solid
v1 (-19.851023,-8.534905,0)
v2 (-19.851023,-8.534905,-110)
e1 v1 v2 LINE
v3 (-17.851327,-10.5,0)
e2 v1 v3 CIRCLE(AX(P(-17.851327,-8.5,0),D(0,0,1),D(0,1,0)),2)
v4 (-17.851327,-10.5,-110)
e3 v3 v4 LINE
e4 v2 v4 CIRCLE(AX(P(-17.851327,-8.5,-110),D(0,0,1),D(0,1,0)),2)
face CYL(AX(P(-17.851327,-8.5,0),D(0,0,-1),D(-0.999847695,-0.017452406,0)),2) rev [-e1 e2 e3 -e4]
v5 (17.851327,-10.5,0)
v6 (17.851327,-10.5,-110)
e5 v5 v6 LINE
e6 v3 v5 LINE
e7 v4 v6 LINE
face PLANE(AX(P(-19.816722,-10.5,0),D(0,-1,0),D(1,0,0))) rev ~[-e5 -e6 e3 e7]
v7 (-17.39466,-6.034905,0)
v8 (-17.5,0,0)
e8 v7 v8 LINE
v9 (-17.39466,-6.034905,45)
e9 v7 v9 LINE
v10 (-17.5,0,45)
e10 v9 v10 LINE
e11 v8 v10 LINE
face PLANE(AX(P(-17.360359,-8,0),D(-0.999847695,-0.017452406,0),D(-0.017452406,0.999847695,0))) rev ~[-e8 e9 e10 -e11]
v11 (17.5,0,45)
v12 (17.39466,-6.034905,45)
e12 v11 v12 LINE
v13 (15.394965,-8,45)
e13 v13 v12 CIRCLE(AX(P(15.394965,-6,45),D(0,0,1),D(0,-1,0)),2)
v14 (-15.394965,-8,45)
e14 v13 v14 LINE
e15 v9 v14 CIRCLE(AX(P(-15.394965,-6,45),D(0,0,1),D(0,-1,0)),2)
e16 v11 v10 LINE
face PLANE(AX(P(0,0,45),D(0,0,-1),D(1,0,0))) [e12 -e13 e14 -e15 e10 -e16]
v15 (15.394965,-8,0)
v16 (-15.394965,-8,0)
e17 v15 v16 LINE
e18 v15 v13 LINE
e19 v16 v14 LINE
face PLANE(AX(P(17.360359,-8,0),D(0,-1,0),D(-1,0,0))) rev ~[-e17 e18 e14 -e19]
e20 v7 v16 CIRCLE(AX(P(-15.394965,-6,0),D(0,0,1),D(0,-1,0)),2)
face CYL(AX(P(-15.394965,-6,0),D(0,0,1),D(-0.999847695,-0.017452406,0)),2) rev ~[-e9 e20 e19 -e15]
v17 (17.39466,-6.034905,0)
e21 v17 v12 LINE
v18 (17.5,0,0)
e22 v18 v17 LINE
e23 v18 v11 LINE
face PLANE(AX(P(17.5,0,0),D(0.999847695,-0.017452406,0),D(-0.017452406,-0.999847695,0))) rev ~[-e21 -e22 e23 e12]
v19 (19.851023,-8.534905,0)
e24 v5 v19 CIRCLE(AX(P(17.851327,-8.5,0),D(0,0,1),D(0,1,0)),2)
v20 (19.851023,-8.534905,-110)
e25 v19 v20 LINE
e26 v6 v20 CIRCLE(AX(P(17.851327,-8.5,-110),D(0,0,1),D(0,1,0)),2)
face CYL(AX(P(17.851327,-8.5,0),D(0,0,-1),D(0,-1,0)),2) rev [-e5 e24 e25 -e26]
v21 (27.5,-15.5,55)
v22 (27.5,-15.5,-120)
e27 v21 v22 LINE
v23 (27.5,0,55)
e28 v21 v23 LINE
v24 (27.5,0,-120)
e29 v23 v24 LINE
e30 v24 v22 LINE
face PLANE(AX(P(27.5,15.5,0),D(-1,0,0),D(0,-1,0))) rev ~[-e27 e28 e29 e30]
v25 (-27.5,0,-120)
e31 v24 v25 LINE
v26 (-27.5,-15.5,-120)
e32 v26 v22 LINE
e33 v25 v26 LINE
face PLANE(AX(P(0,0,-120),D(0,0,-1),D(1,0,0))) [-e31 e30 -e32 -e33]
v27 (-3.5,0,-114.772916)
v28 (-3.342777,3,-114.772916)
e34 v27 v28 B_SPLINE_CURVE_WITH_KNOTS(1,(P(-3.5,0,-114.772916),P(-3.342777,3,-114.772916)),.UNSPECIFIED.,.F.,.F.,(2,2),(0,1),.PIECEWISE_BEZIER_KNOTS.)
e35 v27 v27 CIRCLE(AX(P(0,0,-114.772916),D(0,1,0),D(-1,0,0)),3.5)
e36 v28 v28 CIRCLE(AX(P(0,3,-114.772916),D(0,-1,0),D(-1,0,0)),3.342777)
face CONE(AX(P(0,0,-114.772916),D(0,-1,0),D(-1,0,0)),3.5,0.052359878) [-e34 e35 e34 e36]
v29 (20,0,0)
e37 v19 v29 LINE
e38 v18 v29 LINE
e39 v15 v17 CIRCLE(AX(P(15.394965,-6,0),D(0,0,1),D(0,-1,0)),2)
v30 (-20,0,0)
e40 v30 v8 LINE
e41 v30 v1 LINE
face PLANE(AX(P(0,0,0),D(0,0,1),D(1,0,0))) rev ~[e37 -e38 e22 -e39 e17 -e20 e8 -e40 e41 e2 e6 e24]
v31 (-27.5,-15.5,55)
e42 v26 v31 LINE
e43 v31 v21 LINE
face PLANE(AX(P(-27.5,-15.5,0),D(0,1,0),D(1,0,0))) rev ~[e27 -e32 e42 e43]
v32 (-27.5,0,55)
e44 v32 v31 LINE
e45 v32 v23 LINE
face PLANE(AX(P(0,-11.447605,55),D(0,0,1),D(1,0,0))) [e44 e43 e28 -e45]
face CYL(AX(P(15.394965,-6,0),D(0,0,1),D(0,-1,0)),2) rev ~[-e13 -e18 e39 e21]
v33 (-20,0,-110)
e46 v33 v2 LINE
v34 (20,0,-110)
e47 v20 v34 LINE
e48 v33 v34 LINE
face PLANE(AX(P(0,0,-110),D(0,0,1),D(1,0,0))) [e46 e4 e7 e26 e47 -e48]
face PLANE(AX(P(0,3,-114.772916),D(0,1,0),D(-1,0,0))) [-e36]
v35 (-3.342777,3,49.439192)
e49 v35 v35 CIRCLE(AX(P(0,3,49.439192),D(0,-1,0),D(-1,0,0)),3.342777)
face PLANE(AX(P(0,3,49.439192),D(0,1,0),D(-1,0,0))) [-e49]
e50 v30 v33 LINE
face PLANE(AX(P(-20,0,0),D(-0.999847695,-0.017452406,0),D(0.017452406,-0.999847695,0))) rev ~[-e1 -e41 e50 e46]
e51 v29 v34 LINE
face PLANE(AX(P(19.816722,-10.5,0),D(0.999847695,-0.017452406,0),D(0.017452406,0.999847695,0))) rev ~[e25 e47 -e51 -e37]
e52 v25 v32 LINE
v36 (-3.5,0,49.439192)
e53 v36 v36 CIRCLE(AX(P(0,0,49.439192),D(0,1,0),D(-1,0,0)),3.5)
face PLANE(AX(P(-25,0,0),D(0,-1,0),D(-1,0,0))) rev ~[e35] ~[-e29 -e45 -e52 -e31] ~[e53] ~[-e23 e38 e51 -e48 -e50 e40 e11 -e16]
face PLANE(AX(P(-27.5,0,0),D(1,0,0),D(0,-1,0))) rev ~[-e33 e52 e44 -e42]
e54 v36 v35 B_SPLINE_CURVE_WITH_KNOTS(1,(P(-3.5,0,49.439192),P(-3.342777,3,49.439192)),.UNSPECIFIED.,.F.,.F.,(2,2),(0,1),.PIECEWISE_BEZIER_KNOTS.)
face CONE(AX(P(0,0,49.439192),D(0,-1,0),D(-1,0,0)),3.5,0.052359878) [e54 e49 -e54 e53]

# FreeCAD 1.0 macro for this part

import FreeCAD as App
import Part
import Sketcher

V = App.Vector
Q = App.Units.Quantity


def edges_at(feature, points):
    """Names of the edges that pass closest to the given points."""
    edges = feature.Shape.Edges
    near = lambda p: min(range(len(edges)), key=lambda i: edges[i].distToShape(Part.Vertex(*p))[0])
    return sorted({f"Edge{near(p) + 1}" for p in points})


def add_polygon(sketch, points):
    """Adds a closed chain of lines whose ends are joined by coincident constraints."""
    first, n = sketch.GeometryCount, len(points)
    for a, b in zip(points, points[1:] + points[:1]):
        sketch.addGeometry(Part.LineSegment(App.Vector(*a, 0), App.Vector(*b, 0)), False)
    for i in range(n):
        sketch.addConstraint(Sketcher.Constraint("Coincident", first + i, 2, first + (i + 1) % n, 1))

doc = App.newDocument("Part")
body = doc.addObject("PartDesign::Body", "Body")

# Sketch on XY plane
sketch1 = body.newObject("Sketcher::SketchObject", "Sketch")
sketch1.AttachmentSupport = (doc.getObject("XY_Plane"), [""])
sketch1.MapMode = "FlatFace"
add_polygon(sketch1, [(-25, 13), (-25, -13), (25, -13), (25, 13)])  # lines 0-3
sketch1.addConstraint([
    Sketcher.Constraint("Vertical", 0),
    Sketcher.Constraint("Horizontal", 1),
    Sketcher.Constraint("Vertical", 2),
    Sketcher.Constraint("Horizontal", 3),
    Sketcher.Constraint("Symmetric", 0, 2, 2, 2, -1, 1),
    Sketcher.Constraint("DistanceX", 1, 1, 1, 2, Q("50 mm")),
    Sketcher.Constraint("DistanceY", 0, 2, 0, 1, Q("26 mm")),
])
pad1 = body.newObject("PartDesign::Pad", "Pad")
pad1.Profile = sketch1
pad1.Length = 55

# Sketch on XY plane
sketch2 = body.newObject("Sketcher::SketchObject", "Sketch001")
sketch2.AttachmentSupport = (doc.getObject("XY_Plane"), [""])
sketch2.MapMode = "FlatFace"
add_polygon(sketch2, [(-17, 8), (17, 8), (18, 0), (17, -8), (-17, -8), (-18, 0)])  # lines 0-5
sketch2.addConstraint([
    Sketcher.Constraint("Horizontal", 0),
    Sketcher.Constraint("Horizontal", 3),
    Sketcher.Constraint("Symmetric", 0, 2, 3, 2, -1, 1),
    Sketcher.Constraint("Symmetric", 1, 2, 4, 2, -1, 1),
    Sketcher.Constraint("PointOnObject", 1, 2, -1),
    Sketcher.Constraint("Parallel", 2, 5),
    Sketcher.Constraint("Vertical", 0, 2, 2, 2),
    Sketcher.Constraint("Angle", 1, Q("-89 deg")),
    Sketcher.Constraint("DistanceY", -1, 1, 0, 2, Q("8 mm")),
    Sketcher.Constraint("DistanceX", 4, 2, 1, 2, Q("35 mm")),
])
pocket1 = body.newObject("PartDesign::Pocket", "Pocket")
pocket1.Profile = sketch2
pocket1.Length = 45
pocket1.Reversed = True
doc.recompute()

fillet = body.newObject("PartDesign::Fillet", "Fillet")
fillet.Base = (pocket1, edges_at(pocket1, [(-17.36, 8, 22.5), (17.36, 8, 22.5)]))
fillet.Radius = 2
doc.recompute()

fillet2 = body.newObject("PartDesign::Fillet", "Fillet001")
fillet2.Base = (fillet, edges_at(fillet, [(-17.36, -8, 22.5), (17.36, -8, 22.5)]))
fillet2.Radius = 2

# Sketch on XY plane
sketch3 = body.newObject("Sketcher::SketchObject", "Sketch002")
sketch3.AttachmentSupport = (doc.getObject("XY_Plane"), [""])
sketch3.MapMode = "FlatFace"
add_polygon(sketch3, [(-28, -16), (-28, 16), (28, 16), (28, -16)])  # lines 0-3
sketch3.addConstraint([
    Sketcher.Constraint("Vertical", 0),
    Sketcher.Constraint("Horizontal", 1),
    Sketcher.Constraint("Vertical", 2),
    Sketcher.Constraint("Horizontal", 3),
    Sketcher.Constraint("Symmetric", 0, 2, 2, 2, -1, 1),
    Sketcher.Constraint("DistanceX", 1, 1, 1, 2, Q("55 mm")),
    Sketcher.Constraint("DistanceY", 0, 1, 0, 2, Q("31 mm")),
])
pad2 = body.newObject("PartDesign::Pad", "Pad001")
pad2.Profile = sketch3
pad2.Length = 120
pad2.Reversed = True

# Sketch on XY plane
sketch4 = body.newObject("Sketcher::SketchObject", "Sketch003")
sketch4.AttachmentSupport = (doc.getObject("XY_Plane"), [""])
sketch4.MapMode = "FlatFace"
add_polygon(sketch4, [(-20, 10), (-20, 0), (-20, -10), (20, -10), (20, 0), (20, 10)])  # lines 0-5
sketch4.addConstraint([
    Sketcher.Constraint("Horizontal", 2),
    Sketcher.Constraint("Horizontal", 5),
    Sketcher.Constraint("Symmetric", 0, 2, 3, 2, -1, 1),
    Sketcher.Constraint("Symmetric", 1, 2, 4, 2, -1, 1),
    Sketcher.Constraint("PointOnObject", 0, 2, -1),
    Sketcher.Constraint("Parallel", 0, 3),
    Sketcher.Constraint("Vertical", 2, 2, 4, 2),
    Sketcher.Constraint("Angle", 0, Q("-91 deg")),
    Sketcher.Constraint("DistanceX", 0, 2, -1, 1, Q("20 mm")),
    Sketcher.Constraint("DistanceY", 2, 2, 4, 2, Q("21 mm")),
])
pocket2 = body.newObject("PartDesign::Pocket", "Pocket001")
pocket2.Profile = sketch4
pocket2.Length = 110
doc.recompute()

fillet3 = body.newObject("PartDesign::Fillet", "Fillet002")
fillet3.Base = (pocket2, edges_at(pocket2, [
    (-19.817, -10.5, -55),
    (19.817, -10.5, -55),
    (-19.817, 10.5, -55),
    (19.817, 10.5, -55),
]))
fillet3.Radius = 2

# Sketch on XZ plane
sketch5 = body.newObject("Sketcher::SketchObject", "Sketch004")
sketch5.AttachmentSupport = (doc.getObject("XZ_Plane"), [""])
sketch5.MapMode = "FlatFace"
add_polygon(sketch5, [(-95, 87), (-95, -148), (99, -148), (99, 87)])  # lines 0-3
sketch5.addConstraint([
    Sketcher.Constraint("Vertical", 0),
    Sketcher.Constraint("Horizontal", 1),
    Sketcher.Constraint("Vertical", 2),
    Sketcher.Constraint("Horizontal", 3),
    Sketcher.Constraint("DistanceX", 1, 1, 1, 2, Q("193.870172 mm")),
    Sketcher.Constraint("DistanceY", 0, 2, 0, 1, Q("235.134281 mm")),
    Sketcher.Constraint("DistanceX", -1, 1, 1, 2, Q("98.981559 mm")),
    Sketcher.Constraint("DistanceY", 0, 2, -1, 1, Q("148.463324 mm")),
])
pocket3 = body.newObject("PartDesign::Pocket", "Pocket002")
pocket3.Profile = sketch5
pocket3.Type = "ThroughAll"

# Sketch on XZ plane
sketch6 = body.newObject("Sketcher::SketchObject", "Sketch005")
sketch6.AttachmentSupport = (doc.getObject("XZ_Plane"), [""])
sketch6.MapMode = "FlatFace"
sketch6.addGeometry(Part.Circle(V(0, 49.4, 0), V(0, 0, 1), 3.5), False)
sketch6.addConstraint([
    Sketcher.Constraint("PointOnObject", 0, 3, -2),
    Sketcher.Constraint("Diameter", 0, Q("7 mm")),
    Sketcher.Constraint("DistanceY", -1, 1, 0, 3, Q("49.439192 mm")),
])
pad3 = body.newObject("PartDesign::Pad", "Pad002")
pad3.Profile = sketch6
pad3.Length = 3
pad3.Reversed = True
pad3.TaperAngle = -3

# Sketch on XZ plane
sketch7 = body.newObject("Sketcher::SketchObject", "Sketch006")
sketch7.AttachmentSupport = (doc.getObject("XZ_Plane"), [""])
sketch7.MapMode = "FlatFace"
sketch7.addGeometry(Part.Circle(V(0, -114.8, 0), V(0, 0, 1), 3.5), False)
sketch7.addConstraint([
    Sketcher.Constraint("PointOnObject", 0, 3, -2),
    Sketcher.Constraint("Diameter", 0, Q("7 mm")),
    Sketcher.Constraint("DistanceY", 0, 3, -1, 1, Q("114.772916 mm")),
])
pad4 = body.newObject("PartDesign::Pad", "Pad003")
pad4.Profile = sketch7
pad4.Length = 3
pad4.Reversed = True
pad4.TaperAngle = -3

# Sketch on XY plane
sketch8 = body.newObject("Sketcher::SketchObject", "Sketch007")
sketch8.AttachmentSupport = (doc.getObject("XY_Plane"), [""])
sketch8.MapMode = "FlatFace"
add_polygon(sketch8, [(-25, 0), (-27.5, 0), (-27.5, -15.5), (27.5, -15.5), (27.5, 0), (25, 0), (25, -13), (-25, -13)])  # lines 0-7
sketch8.addConstraint([
    Sketcher.Constraint("Horizontal", 0),
    Sketcher.Constraint("Vertical", 1),
    Sketcher.Constraint("Horizontal", 2),
    Sketcher.Constraint("Vertical", 3),
    Sketcher.Constraint("Horizontal", 4),
    Sketcher.Constraint("Vertical", 5),
    Sketcher.Constraint("Horizontal", 6),
    Sketcher.Constraint("Vertical", 7),
    Sketcher.Constraint("Symmetric", 0, 2, 3, 2, -1, 1),
    Sketcher.Constraint("Symmetric", 4, 2, 7, 2, -2),
    Sketcher.Constraint("DistanceX", 2, 1, 2, 2, Q("55 mm")),
    Sketcher.Constraint("DistanceX", 6, 2, 6, 1, Q("50 mm")),
    Sketcher.Constraint("DistanceY", 5, 2, 5, 1, Q("13 mm")),
    Sketcher.Constraint("DistanceY", 1, 2, 1, 1, Q("15.5 mm")),
])
pad5 = body.newObject("PartDesign::Pad", "Pad004")
pad5.Profile = sketch8
pad5.Type = "UpToLast"

doc.recompute()
